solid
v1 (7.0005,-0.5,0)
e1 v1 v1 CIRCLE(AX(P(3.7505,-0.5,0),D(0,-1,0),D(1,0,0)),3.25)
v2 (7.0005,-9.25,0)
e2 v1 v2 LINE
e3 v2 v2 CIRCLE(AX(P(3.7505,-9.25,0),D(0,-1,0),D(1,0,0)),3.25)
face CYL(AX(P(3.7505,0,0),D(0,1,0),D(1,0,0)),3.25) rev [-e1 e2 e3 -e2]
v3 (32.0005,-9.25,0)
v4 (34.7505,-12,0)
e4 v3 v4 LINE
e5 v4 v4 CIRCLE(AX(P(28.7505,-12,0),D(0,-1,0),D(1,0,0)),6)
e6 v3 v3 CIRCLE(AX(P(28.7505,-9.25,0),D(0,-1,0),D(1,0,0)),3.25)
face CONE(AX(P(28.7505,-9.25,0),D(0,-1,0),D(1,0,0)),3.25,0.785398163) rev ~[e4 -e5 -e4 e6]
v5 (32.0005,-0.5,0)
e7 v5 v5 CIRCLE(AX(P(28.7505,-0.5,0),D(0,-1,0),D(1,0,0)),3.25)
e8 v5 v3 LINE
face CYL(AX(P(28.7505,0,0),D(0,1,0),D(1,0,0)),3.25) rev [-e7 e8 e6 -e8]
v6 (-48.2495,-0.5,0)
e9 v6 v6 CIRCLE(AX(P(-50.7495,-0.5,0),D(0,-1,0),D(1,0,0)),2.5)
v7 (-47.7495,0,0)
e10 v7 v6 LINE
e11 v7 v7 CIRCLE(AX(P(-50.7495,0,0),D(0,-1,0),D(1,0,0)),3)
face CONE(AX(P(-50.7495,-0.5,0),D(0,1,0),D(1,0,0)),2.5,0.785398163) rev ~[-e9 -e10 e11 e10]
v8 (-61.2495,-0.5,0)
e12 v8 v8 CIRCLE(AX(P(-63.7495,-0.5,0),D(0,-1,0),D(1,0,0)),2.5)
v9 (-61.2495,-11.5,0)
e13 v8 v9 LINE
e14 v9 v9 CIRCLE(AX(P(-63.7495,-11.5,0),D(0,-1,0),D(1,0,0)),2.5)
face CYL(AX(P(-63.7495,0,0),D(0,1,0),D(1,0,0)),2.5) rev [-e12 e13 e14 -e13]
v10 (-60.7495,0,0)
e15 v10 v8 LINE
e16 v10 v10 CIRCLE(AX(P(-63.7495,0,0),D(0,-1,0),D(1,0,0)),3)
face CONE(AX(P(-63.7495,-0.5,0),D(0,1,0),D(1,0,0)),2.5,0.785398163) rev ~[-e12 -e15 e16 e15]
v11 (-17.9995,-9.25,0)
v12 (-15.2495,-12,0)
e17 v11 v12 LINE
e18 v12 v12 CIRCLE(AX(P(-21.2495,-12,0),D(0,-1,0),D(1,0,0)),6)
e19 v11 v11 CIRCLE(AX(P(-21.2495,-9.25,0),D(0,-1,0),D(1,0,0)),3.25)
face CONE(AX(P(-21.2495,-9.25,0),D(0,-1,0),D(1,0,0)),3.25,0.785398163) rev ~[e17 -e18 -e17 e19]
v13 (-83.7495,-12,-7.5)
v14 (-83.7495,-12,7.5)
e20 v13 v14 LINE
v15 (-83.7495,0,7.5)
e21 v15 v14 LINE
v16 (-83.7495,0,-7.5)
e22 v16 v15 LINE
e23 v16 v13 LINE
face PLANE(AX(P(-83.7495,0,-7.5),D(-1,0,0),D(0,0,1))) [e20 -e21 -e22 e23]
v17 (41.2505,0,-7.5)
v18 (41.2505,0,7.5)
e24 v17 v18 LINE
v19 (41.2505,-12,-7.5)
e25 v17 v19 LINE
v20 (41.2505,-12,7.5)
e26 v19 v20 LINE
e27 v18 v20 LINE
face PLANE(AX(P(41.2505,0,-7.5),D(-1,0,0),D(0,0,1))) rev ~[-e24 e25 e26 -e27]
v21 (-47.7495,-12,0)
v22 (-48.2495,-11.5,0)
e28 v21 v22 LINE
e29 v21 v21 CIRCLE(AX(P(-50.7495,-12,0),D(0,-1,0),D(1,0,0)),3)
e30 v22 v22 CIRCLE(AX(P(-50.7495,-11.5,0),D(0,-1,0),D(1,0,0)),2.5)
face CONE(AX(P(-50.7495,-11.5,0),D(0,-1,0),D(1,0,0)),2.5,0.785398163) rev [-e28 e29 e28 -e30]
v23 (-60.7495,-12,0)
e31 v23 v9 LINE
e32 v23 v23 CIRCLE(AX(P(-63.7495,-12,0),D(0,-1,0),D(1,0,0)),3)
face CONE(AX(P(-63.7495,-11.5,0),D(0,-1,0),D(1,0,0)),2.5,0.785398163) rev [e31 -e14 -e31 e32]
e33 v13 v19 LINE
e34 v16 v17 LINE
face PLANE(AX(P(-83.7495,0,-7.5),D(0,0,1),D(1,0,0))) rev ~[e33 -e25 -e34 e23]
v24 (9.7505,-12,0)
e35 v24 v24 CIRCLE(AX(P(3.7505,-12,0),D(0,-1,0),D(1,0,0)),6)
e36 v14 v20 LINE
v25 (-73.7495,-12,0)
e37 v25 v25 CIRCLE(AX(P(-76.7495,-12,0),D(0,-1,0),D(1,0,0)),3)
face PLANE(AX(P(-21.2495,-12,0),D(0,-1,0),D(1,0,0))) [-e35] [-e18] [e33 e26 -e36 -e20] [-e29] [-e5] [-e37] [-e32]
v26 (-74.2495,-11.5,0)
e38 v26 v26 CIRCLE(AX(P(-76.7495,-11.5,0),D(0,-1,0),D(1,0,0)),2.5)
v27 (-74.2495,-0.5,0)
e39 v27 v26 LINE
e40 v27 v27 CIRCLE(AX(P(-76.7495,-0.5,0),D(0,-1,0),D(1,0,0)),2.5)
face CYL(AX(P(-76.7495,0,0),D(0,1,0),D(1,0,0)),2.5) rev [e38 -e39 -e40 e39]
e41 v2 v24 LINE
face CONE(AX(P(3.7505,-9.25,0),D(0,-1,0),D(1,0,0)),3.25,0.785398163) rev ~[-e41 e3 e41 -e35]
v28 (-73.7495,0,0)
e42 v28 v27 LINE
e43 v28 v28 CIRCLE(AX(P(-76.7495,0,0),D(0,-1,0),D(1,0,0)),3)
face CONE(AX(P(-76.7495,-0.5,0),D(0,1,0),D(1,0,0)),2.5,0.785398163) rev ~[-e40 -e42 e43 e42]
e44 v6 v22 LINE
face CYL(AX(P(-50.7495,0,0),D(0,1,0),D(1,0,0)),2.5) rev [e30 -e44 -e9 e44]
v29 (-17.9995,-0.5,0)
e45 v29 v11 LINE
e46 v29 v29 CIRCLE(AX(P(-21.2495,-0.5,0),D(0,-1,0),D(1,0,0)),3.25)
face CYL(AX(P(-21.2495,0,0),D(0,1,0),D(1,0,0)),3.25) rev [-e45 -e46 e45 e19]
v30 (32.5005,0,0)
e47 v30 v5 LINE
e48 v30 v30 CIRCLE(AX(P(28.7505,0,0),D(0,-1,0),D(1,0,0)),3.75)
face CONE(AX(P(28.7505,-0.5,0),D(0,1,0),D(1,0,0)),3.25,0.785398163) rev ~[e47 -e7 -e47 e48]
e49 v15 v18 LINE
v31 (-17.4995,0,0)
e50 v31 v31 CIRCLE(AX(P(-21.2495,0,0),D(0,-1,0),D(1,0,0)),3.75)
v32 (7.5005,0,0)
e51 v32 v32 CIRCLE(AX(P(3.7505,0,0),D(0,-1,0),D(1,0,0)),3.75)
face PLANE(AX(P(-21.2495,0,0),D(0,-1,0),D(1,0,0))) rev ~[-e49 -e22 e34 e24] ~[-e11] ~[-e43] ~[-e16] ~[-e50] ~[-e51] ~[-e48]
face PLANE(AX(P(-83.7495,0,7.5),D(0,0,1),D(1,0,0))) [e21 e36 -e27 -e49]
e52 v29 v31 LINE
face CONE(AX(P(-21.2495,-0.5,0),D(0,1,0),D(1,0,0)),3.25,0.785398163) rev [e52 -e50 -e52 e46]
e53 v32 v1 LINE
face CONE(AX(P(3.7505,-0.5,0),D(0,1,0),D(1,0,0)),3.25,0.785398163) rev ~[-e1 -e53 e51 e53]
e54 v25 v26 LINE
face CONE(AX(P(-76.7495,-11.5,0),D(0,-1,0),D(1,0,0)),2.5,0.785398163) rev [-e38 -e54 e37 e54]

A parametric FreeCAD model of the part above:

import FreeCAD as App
import Part
import Sketcher

V = App.Vector
Q = App.Units.Quantity


def edges_at(feature, points):
    """Names of the edges that pass closest to the given points."""
    edges = feature.Shape.Edges
    near = lambda p: min(range(len(edges)), key=lambda i: edges[i].distToShape(Part.Vertex(*p))[0])
    return sorted({f"Edge{near(p) + 1}" for p in points})


def add_polygon(sketch, points):
    """Adds a closed chain of lines whose ends are joined by coincident constraints."""
    first, n = sketch.GeometryCount, len(points)
    for a, b in zip(points, points[1:] + points[:1]):
        sketch.addGeometry(Part.LineSegment(App.Vector(*a, 0), App.Vector(*b, 0)), False)
    for i in range(n):
        sketch.addConstraint(Sketcher.Constraint("Coincident", first + i, 2, first + (i + 1) % n, 1))

doc = App.newDocument("Part")
body = doc.addObject("PartDesign::Body", "Body")

# Sketch on XZ plane
sketch1 = body.newObject("Sketcher::SketchObject", "Sketch")
sketch1.AttachmentSupport = (doc.getObject("XZ_Plane"), [""])
sketch1.MapMode = "FlatFace"
add_polygon(sketch1, [(-83.7, 7.5), (-83.7, -7.5), (41.3, -7.5), (41.3, 7.5)])  # lines 0-3
sketch1.addGeometry(Part.Circle(V(-76.7, 0, 0), V(0, 0, 1), 2.5), False)  # 4
sketch1.addGeometry(Part.Circle(V(-63.7, 0, 0), V(0, 0, 1), 2.5), False)  # 5
sketch1.addGeometry(Part.Circle(V(-50.7, 0, 0), V(0, 0, 1), 2.5), False)  # 6
sketch1.addGeometry(Part.Circle(V(-21.2, 0, 0), V(0, 0, 1), 3.2), False)  # 7
sketch1.addGeometry(Part.Circle(V(3.8, 0, 0), V(0, 0, 1), 3.2), False)  # 8
sketch1.addGeometry(Part.Circle(V(28.8, 0, 0), V(0, 0, 1), 3.2), False)  # 9
sketch1.addConstraint([
    Sketcher.Constraint("Vertical", 0),
    Sketcher.Constraint("Horizontal", 1),
    Sketcher.Constraint("Vertical", 2),
    Sketcher.Constraint("Horizontal", 3),
    Sketcher.Constraint("Equal", 4, 5),
    Sketcher.Constraint("Equal", 5, 6),
    Sketcher.Constraint("Equal", 7, 8),
    Sketcher.Constraint("Equal", 8, 9),
    Sketcher.Constraint("PointOnObject", 4, 3, -1),
    Sketcher.Constraint("PointOnObject", 5, 3, -1),
    Sketcher.Constraint("PointOnObject", 6, 3, -1),
    Sketcher.Constraint("PointOnObject", 7, 3, -1),
    Sketcher.Constraint("PointOnObject", 8, 3, -1),
    Sketcher.Constraint("PointOnObject", 9, 3, -1),
    Sketcher.Constraint("Diameter", 4, Q("5 mm")),
    Sketcher.Constraint("Diameter", 7, Q("6.5 mm")),
    Sketcher.Constraint("DistanceX", 1, 1, 1, 2, Q("125 mm")),
    Sketcher.Constraint("DistanceY", 0, 2, 0, 1, Q("15 mm")),
    Sketcher.Constraint("DistanceX", 4, 3, 5, 3, Q("13 mm")),
    Sketcher.Constraint("DistanceX", 5, 3, 6, 3, Q("13 mm")),
    Sketcher.Constraint("DistanceX", 7, 3, 8, 3, Q("25 mm")),
    Sketcher.Constraint("DistanceX", 8, 3, 9, 3, Q("25 mm")),
    Sketcher.Constraint("DistanceX", 0, 2, 4, 3, Q("7 mm")),
    Sketcher.Constraint("DistanceY", 0, 2, -1, 1, Q("7.5 mm")),
    Sketcher.Constraint("DistanceX", 6, 3, 7, 3, Q("29.5 mm")),
    Sketcher.Constraint("DistanceX", 4, 3, -1, 1, Q("76.7495 mm")),
])
pad1 = body.newObject("PartDesign::Pad", "Pad")
pad1.Profile = sketch1
pad1.Length = 12
doc.recompute()

chamfer = body.newObject("PartDesign::Chamfer", "Chamfer")
chamfer.Base = (pad1, edges_at(pad1, [(-24.5, -12, 0), (0.5, -12, 0), (25.5, -12, 0)]))
chamfer.Size = 2.75
doc.recompute()

chamfer2 = body.newObject("PartDesign::Chamfer", "Chamfer001")
chamfer2.Base = (chamfer, edges_at(chamfer, [
    (-79.249, -12, 0),
    (-66.249, -12, 0),
    (-53.249, -12, 0),
    (0.5, 0, 0),
    (25.5, 0, 0),
    (-24.5, 0, 0),
    (-53.249, 0, 0),
    (-66.249, 0, 0),
    (-79.249, 0, 0),
]))
chamfer2.Size = 0.5

doc.recompute()
